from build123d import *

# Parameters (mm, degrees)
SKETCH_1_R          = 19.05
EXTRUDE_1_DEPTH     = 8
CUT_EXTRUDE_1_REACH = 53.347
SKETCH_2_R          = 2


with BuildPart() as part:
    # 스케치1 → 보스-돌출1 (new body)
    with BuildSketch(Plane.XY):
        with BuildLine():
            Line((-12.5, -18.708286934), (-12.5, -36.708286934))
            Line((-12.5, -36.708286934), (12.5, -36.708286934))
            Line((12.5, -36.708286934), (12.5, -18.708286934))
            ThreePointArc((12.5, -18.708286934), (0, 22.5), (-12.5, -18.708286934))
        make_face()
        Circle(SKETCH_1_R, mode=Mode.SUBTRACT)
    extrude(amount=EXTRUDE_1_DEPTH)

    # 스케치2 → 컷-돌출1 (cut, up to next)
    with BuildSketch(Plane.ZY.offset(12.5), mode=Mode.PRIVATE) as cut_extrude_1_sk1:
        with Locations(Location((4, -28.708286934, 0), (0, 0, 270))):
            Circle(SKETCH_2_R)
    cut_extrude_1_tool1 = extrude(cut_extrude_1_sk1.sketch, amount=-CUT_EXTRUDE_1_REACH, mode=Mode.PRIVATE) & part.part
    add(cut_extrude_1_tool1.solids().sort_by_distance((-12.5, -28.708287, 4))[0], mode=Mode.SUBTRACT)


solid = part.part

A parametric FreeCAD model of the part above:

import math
import FreeCAD as App
import Part
import Sketcher

doc = App.newDocument("Part")
params = doc.addObject("Spreadsheet::Sheet", "Params")
for row, (alias, value) in enumerate([
    ("sketch1_diameter", "38.1 mm"),
    ("sketch1_radius", "22.5 mm"),
    ("sketch1_width", "25 mm"),
    ("sketch1_height", "18 mm"),
    ("pad1_length", "8 mm"),
    ("sketch2_diameter", "4 mm"),
], start=1):
    params.set(f"A{row}", alias)
    params.set(f"B{row}", "=" + value)
    params.setAlias(f"B{row}", alias)

body = doc.addObject("PartDesign::Body", "Body")

# Sketch on XY plane
sketch1 = doc.addObject("Sketcher::SketchObject", "Sketch")
body.addObject(sketch1)
sketch1.AttachmentSupport = (doc.XY_Plane, [""])
sketch1.MapMode = "FlatFace"
sketch1.addGeometry([
    Part.LineSegment(App.Vector(-12, -19, 0), App.Vector(-12, -37, 0)),  # 0
    Part.LineSegment(App.Vector(-12, -37, 0), App.Vector(12, -37, 0)),  # 1
    Part.LineSegment(App.Vector(12, -37, 0), App.Vector(12, -19, 0)),  # 2
    Part.ArcOfCircle(Part.Circle(App.Vector(0, 0, 0), App.Vector(0, 0, 1), 22), math.radians(-56), math.radians(236)),  # 3
    Part.Circle(App.Vector(0, 0, 0), App.Vector(0, 0, 1), 19),  # 4
], False)
sketch1.addConstraint([
    Sketcher.Constraint("Coincident", 0, 2, 1, 1),
    Sketcher.Constraint("Coincident", 1, 2, 2, 1),
    Sketcher.Constraint("Coincident", 2, 2, 3, 1),
    Sketcher.Constraint("Coincident", 3, 2, 0, 1),
    Sketcher.Constraint("Vertical", 0),
    Sketcher.Constraint("Horizontal", 1),
    Sketcher.Constraint("Vertical", 2),
    Sketcher.Constraint("Coincident", 3, 3, -1, 1),
    Sketcher.Constraint("Coincident", 4, 3, -1, 1),
    Sketcher.Constraint("Horizontal", 2, 2, 3, 2),
    Sketcher.Constraint("Diameter", 4, 38.1),
    Sketcher.Constraint("Radius", 3, 22.5),
    Sketcher.Constraint("DistanceX", 1, 1, 1, 2, 25.0),
    Sketcher.Constraint("DistanceY", 0, 2, 0, 1, 18.0),
])
sketch1.setExpression("Constraints[10]", "Params.sketch1_diameter")
sketch1.setExpression("Constraints[11]", "Params.sketch1_radius")
sketch1.setExpression("Constraints[12]", "Params.sketch1_width")
sketch1.setExpression("Constraints[13]", "Params.sketch1_height")
pad1 = doc.addObject("PartDesign::Pad", "Pad")
body.addObject(pad1)
pad1.Profile = sketch1
pad1.setExpression("Length", "Params.pad1_length")

# Sketch on YZ plane
sketch2 = doc.addObject("Sketcher::SketchObject", "Sketch001")
body.addObject(sketch2)
sketch2.AttachmentSupport = (doc.YZ_Plane, [""])
sketch2.MapMode = "FlatFace"
sketch2.AttachmentOffset = App.Placement(App.Vector(0, 0, -12.5), App.Rotation())
sketch2.addGeometry(Part.Circle(App.Vector(-28.7, 4, 0), App.Vector(0, 0, 1), 2), False)
sketch2.addConstraint([
    Sketcher.Constraint("Diameter", 0, 4.0),
    Sketcher.Constraint("DistanceY", -1, 1, 0, 3, 4.0),
    Sketcher.Constraint("DistanceX", 0, 3, -1, 1, 28.708287),
])
sketch2.setExpression("Constraints[0]", "Params.sketch2_diameter")
pocket1 = doc.addObject("PartDesign::Pocket", "Pocket")
body.addObject(pocket1)
pocket1.Profile = sketch2
pocket1.Type = "UpToFirst"
pocket1.Reversed = True

doc.recompute()
